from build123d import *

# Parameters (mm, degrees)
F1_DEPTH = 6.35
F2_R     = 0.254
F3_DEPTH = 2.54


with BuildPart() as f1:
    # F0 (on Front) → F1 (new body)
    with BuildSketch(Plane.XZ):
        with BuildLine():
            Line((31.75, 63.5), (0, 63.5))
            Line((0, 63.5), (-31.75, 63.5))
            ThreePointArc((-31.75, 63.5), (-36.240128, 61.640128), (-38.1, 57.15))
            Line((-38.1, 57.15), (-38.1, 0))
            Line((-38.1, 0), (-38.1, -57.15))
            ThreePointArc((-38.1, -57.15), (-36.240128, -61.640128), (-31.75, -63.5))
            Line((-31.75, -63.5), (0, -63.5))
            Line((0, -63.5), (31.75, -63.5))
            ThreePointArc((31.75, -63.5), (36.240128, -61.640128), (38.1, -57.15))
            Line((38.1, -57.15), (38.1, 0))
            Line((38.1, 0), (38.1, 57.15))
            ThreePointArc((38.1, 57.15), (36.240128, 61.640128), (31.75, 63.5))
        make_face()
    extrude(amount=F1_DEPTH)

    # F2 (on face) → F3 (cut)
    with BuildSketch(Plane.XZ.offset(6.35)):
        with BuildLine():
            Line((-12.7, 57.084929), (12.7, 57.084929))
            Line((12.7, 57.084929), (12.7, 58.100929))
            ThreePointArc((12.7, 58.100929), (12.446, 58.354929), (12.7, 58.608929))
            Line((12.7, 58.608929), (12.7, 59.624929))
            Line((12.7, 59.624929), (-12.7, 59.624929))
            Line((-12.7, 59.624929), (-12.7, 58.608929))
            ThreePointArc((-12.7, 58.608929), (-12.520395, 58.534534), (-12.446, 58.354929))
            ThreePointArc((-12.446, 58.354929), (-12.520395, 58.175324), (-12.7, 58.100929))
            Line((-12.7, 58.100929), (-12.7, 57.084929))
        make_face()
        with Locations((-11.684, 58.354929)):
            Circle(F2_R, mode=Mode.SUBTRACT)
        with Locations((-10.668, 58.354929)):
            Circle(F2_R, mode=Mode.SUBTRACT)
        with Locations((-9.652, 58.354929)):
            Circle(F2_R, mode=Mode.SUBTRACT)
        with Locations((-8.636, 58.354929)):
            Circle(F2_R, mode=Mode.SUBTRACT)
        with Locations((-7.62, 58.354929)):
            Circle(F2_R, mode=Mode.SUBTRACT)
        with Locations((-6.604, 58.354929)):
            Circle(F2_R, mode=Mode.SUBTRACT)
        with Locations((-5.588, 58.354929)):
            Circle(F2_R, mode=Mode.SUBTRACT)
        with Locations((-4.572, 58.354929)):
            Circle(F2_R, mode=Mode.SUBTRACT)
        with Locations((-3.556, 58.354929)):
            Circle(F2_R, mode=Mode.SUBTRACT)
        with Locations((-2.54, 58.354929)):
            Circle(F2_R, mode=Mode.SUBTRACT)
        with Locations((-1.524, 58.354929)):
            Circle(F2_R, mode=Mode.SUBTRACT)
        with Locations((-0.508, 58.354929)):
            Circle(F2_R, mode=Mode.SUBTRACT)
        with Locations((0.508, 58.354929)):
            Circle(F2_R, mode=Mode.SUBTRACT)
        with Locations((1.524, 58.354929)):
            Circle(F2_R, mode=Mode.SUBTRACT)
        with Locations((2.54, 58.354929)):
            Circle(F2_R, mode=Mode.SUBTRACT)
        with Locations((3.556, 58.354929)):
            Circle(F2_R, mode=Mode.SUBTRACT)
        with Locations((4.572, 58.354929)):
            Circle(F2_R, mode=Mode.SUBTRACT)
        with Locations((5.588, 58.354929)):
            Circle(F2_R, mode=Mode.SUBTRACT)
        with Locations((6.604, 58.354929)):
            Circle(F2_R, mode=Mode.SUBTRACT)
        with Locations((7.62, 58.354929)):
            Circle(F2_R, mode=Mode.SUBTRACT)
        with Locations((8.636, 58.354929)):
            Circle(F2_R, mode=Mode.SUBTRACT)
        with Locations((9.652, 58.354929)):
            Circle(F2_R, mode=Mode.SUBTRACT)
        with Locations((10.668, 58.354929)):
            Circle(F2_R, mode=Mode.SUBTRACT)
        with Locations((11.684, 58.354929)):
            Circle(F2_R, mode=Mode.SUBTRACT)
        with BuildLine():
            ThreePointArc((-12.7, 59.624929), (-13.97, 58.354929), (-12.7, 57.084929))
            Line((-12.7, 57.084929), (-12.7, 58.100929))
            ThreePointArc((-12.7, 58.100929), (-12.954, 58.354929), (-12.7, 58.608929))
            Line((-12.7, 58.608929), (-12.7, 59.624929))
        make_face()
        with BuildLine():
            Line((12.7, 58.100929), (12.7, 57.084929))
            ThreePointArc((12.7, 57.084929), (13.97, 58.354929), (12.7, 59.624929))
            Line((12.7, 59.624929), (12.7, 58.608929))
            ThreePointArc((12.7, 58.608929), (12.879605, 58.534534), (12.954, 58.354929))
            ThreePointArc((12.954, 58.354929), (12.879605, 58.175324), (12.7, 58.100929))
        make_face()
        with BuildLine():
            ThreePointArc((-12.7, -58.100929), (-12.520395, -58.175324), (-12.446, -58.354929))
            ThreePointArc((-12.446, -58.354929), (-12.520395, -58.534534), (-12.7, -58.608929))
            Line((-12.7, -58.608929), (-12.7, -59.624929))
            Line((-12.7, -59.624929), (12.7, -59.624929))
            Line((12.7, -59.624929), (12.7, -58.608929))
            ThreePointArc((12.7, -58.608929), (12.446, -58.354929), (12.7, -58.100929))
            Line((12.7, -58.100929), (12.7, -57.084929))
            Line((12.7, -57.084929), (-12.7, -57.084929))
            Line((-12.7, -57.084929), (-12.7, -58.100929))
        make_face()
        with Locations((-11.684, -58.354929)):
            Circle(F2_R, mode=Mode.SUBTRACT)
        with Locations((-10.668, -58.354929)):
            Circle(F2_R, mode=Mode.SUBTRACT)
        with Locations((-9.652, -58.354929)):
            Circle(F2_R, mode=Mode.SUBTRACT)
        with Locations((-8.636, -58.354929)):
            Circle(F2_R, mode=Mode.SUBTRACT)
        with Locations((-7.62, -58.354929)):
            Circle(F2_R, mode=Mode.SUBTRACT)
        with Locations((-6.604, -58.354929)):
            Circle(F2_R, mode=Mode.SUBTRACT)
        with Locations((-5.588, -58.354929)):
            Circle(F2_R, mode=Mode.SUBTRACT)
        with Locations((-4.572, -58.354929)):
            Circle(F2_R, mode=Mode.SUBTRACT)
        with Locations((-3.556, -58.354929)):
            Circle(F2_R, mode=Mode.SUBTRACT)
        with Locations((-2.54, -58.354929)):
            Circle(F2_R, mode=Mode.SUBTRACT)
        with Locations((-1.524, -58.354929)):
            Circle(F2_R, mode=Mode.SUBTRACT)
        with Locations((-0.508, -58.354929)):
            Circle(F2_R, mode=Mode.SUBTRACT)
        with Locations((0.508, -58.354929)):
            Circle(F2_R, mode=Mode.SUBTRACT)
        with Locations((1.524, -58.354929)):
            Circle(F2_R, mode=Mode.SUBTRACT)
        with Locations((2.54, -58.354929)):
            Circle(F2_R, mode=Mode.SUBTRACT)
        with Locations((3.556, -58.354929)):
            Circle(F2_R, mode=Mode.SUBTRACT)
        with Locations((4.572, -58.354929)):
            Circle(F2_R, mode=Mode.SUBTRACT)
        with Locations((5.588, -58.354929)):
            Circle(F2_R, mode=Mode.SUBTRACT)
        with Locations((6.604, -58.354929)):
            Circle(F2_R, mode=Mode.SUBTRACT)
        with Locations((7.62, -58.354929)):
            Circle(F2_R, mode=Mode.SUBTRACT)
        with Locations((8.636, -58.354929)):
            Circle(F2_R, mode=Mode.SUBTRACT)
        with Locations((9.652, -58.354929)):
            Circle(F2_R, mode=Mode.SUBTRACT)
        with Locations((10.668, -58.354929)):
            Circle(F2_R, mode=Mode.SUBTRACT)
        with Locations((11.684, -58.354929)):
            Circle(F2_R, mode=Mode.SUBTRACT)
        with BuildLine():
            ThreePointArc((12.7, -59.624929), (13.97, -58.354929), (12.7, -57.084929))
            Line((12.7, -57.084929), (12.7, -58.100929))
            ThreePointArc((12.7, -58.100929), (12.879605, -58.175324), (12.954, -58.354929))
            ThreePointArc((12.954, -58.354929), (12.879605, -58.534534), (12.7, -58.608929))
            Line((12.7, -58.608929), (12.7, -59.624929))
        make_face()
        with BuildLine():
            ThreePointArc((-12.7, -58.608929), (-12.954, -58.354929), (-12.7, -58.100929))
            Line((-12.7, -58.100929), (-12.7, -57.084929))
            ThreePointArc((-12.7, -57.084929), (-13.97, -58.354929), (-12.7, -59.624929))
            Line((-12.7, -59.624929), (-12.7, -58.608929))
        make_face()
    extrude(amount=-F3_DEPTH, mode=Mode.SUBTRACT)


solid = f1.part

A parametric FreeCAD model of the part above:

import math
import FreeCAD as App
import Part
import Sketcher

V = App.Vector
Q = App.Units.Quantity

doc = App.newDocument("Part")
body = doc.addObject("PartDesign::Body", "Body")

sketch1 = body.newObject("Sketcher::SketchObject", "Sketch")
sketch1.AttachmentSupport = (doc.getObject("XZ_Plane"), [""])
sketch1.MapMode = "FlatFace"
sketch1.addGeometry(Part.LineSegment(V(32, 64, 0), V(-32, 64, 0)), False)
sketch1.addGeometry(Part.ArcOfCircle(Part.Circle(V(-32, 57, 0), V(0, 0, 1), 6), math.radians(90), math.radians(180)), False)
sketch1.addGeometry(Part.LineSegment(V(-38, 57, 0), V(-38, -57, 0)), False)
sketch1.addGeometry(Part.ArcOfCircle(Part.Circle(V(-32, -57, 0), V(0, 0, 1), 6), math.radians(-180), math.radians(-90)), False)
sketch1.addGeometry(Part.LineSegment(V(-32, -64, 0), V(32, -64, 0)), False)
sketch1.addGeometry(Part.ArcOfCircle(Part.Circle(V(32, -57, 0), V(0, 0, 1), 6), math.radians(-90), math.radians(0)), False)
sketch1.addGeometry(Part.LineSegment(V(38, -57, 0), V(38, 57, 0)), False)
sketch1.addGeometry(Part.ArcOfCircle(Part.Circle(V(32, 57, 0), V(0, 0, 1), 6), math.radians(0), math.radians(90)), False)
sketch1.addConstraint(Sketcher.Constraint("Tangent", 0, 2, 1, 1))
sketch1.addConstraint(Sketcher.Constraint("Tangent", 1, 2, 2, 1))
sketch1.addConstraint(Sketcher.Constraint("Tangent", 2, 2, 3, 1))
sketch1.addConstraint(Sketcher.Constraint("Tangent", 3, 2, 4, 1))
sketch1.addConstraint(Sketcher.Constraint("Tangent", 4, 2, 5, 1))
sketch1.addConstraint(Sketcher.Constraint("Tangent", 5, 2, 6, 1))
sketch1.addConstraint(Sketcher.Constraint("Tangent", 6, 2, 7, 1))
sketch1.addConstraint(Sketcher.Constraint("Tangent", 7, 2, 0, 1))
sketch1.addConstraint(Sketcher.Constraint("Horizontal", 0))
sketch1.addConstraint(Sketcher.Constraint("Vertical", 2))
sketch1.addConstraint(Sketcher.Constraint("Horizontal", 4))
sketch1.addConstraint(Sketcher.Constraint("Vertical", 6))
sketch1.addConstraint(Sketcher.Constraint("Equal", 1, 3))
sketch1.addConstraint(Sketcher.Constraint("Equal", 3, 5))
sketch1.addConstraint(Sketcher.Constraint("Equal", 5, 7))
sketch1.addConstraint(Sketcher.Constraint("Symmetric", 1, 3, 5, 3, -1, 1))
sketch1.addConstraint(Sketcher.Constraint("Radius", 1, Q("0.25 in")))
sketch1.addConstraint(Sketcher.Constraint("DistanceX", 0, 2, 0, 1, Q("2.5 in")))
sketch1.addConstraint(Sketcher.Constraint("DistanceY", 2, 2, 2, 1, Q("4.5 in")))
pad1 = body.newObject("PartDesign::Pad", "Pad")
pad1.Profile = sketch1
pad1.Length = Q("0.25 in")

sketch2 = body.newObject("Sketcher::SketchObject", "Sketch001")
sketch2.AttachmentSupport = (doc.getObject("XZ_Plane"), [""])
sketch2.MapMode = "FlatFace"
sketch2.AttachmentOffset = App.Placement(V(0, 0, 0.25 * 25.4), App.Rotation())
sketch2.addGeometry(Part.LineSegment(V(-12.7, 57.08, 0), V(12.7, 57.08, 0)), False)
sketch2.addGeometry(Part.ArcOfCircle(Part.Circle(V(12.7, 58.35, 0), V(0, 0, 1), 1.27), math.radians(-90), math.radians(90)), False)
sketch2.addGeometry(Part.LineSegment(V(12.7, 59.62, 0), V(-12.7, 59.62, 0)), False)
sketch2.addGeometry(Part.ArcOfCircle(Part.Circle(V(-12.7, 58.35, 0), V(0, 0, 1), 1.27), math.radians(90), math.radians(270)), False)
sketch2.addGeometry(Part.ArcOfCircle(Part.Circle(V(12.7, 58.35, 0), V(0, 0, 1), 0.25), math.radians(90), math.radians(270)), False)
sketch2.addGeometry(Part.ArcOfCircle(Part.Circle(V(12.7, 58.35, 0), V(0, 0, 1), 0.25), math.radians(0), math.radians(90)), False)
sketch2.addGeometry(Part.ArcOfCircle(Part.Circle(V(12.7, 58.35, 0), V(0, 0, 1), 0.25), math.radians(-90), math.radians(0)), False)
sketch2.addGeometry(Part.ArcOfCircle(Part.Circle(V(-12.7, 58.35, 0), V(0, 0, 1), 0.25), math.radians(-90), math.radians(0)), False)
sketch2.addGeometry(Part.ArcOfCircle(Part.Circle(V(-12.7, 58.35, 0), V(0, 0, 1), 0.25), math.radians(90), math.radians(270)), False)
sketch2.addGeometry(Part.ArcOfCircle(Part.Circle(V(-12.7, 58.35, 0), V(0, 0, 1), 0.25), math.radians(0), math.radians(90)), False)
sketch2.addGeometry(Part.Circle(V(-11.68, 58.35, 0), V(0, 0, 1), 0.25), False)
sketch2.addGeometry(Part.Circle(V(-10.67, 58.35, 0), V(0, 0, 1), 0.25), False)
sketch2.addGeometry(Part.Circle(V(-9.65, 58.35, 0), V(0, 0, 1), 0.25), False)
sketch2.addGeometry(Part.Circle(V(-8.64, 58.35, 0), V(0, 0, 1), 0.25), False)
sketch2.addGeometry(Part.Circle(V(-7.62, 58.35, 0), V(0, 0, 1), 0.25), False)
sketch2.addGeometry(Part.Circle(V(-6.6, 58.35, 0), V(0, 0, 1), 0.25), False)
sketch2.addGeometry(Part.Circle(V(-5.59, 58.35, 0), V(0, 0, 1), 0.25), False)
sketch2.addGeometry(Part.Circle(V(-4.57, 58.35, 0), V(0, 0, 1), 0.25), False)
sketch2.addGeometry(Part.Circle(V(-3.56, 58.35, 0), V(0, 0, 1), 0.25), False)
sketch2.addGeometry(Part.Circle(V(-2.54, 58.35, 0), V(0, 0, 1), 0.25), False)
sketch2.addGeometry(Part.Circle(V(-1.52, 58.35, 0), V(0, 0, 1), 0.25), False)
sketch2.addGeometry(Part.Circle(V(-0.51, 58.35, 0), V(0, 0, 1), 0.25), False)
sketch2.addGeometry(Part.Circle(V(0.51, 58.35, 0), V(0, 0, 1), 0.25), False)
sketch2.addGeometry(Part.Circle(V(1.52, 58.35, 0), V(0, 0, 1), 0.25), False)
sketch2.addGeometry(Part.Circle(V(2.54, 58.35, 0), V(0, 0, 1), 0.25), False)
sketch2.addGeometry(Part.Circle(V(3.56, 58.35, 0), V(0, 0, 1), 0.25), False)
sketch2.addGeometry(Part.Circle(V(4.57, 58.35, 0), V(0, 0, 1), 0.25), False)
sketch2.addGeometry(Part.Circle(V(5.59, 58.35, 0), V(0, 0, 1), 0.25), False)
sketch2.addGeometry(Part.Circle(V(6.6, 58.35, 0), V(0, 0, 1), 0.25), False)
sketch2.addGeometry(Part.Circle(V(7.62, 58.35, 0), V(0, 0, 1), 0.25), False)
sketch2.addGeometry(Part.Circle(V(8.64, 58.35, 0), V(0, 0, 1), 0.25), False)
sketch2.addGeometry(Part.Circle(V(9.65, 58.35, 0), V(0, 0, 1), 0.25), False)
sketch2.addGeometry(Part.Circle(V(10.67, 58.35, 0), V(0, 0, 1), 0.25), False)
sketch2.addGeometry(Part.Circle(V(11.68, 58.35, 0), V(0, 0, 1), 0.25), False)
sketch2.addGeometry(Part.LineSegment(V(-12.7, -59.62, 0), V(12.7, -59.62, 0)), False)
sketch2.addGeometry(Part.ArcOfCircle(Part.Circle(V(12.7, -58.35, 0), V(0, 0, 1), 1.27), math.radians(-90), math.radians(90)), False)
sketch2.addGeometry(Part.LineSegment(V(12.7, -57.08, 0), V(-12.7, -57.08, 0)), False)
sketch2.addGeometry(Part.ArcOfCircle(Part.Circle(V(-12.7, -58.35, 0), V(0, 0, 1), 1.27), math.radians(90), math.radians(270)), False)
sketch2.addGeometry(Part.ArcOfCircle(Part.Circle(V(-12.7, -58.35, 0), V(0, 0, 1), 0.25), math.radians(0), math.radians(90)), False)
sketch2.addGeometry(Part.ArcOfCircle(Part.Circle(V(-12.7, -58.35, 0), V(0, 0, 1), 0.25), math.radians(-90), math.radians(0)), False)
sketch2.addGeometry(Part.ArcOfCircle(Part.Circle(V(-12.7, -58.35, 0), V(0, 0, 1), 0.25), math.radians(90), math.radians(270)), False)
sketch2.addGeometry(Part.ArcOfCircle(Part.Circle(V(12.7, -58.35, 0), V(0, 0, 1), 0.25), math.radians(90), math.radians(270)), False)
sketch2.addGeometry(Part.ArcOfCircle(Part.Circle(V(12.7, -58.35, 0), V(0, 0, 1), 0.25), math.radians(0), math.radians(90)), False)
sketch2.addGeometry(Part.ArcOfCircle(Part.Circle(V(12.7, -58.35, 0), V(0, 0, 1), 0.25), math.radians(-90), math.radians(0)), False)
sketch2.addGeometry(Part.Circle(V(-11.68, -58.35, 0), V(0, 0, 1), 0.25), False)
sketch2.addGeometry(Part.Circle(V(-10.67, -58.35, 0), V(0, 0, 1), 0.25), False)
sketch2.addGeometry(Part.Circle(V(-9.65, -58.35, 0), V(0, 0, 1), 0.25), False)
sketch2.addGeometry(Part.Circle(V(-8.64, -58.35, 0), V(0, 0, 1), 0.25), False)
sketch2.addGeometry(Part.Circle(V(-7.62, -58.35, 0), V(0, 0, 1), 0.25), False)
sketch2.addGeometry(Part.Circle(V(-6.6, -58.35, 0), V(0, 0, 1), 0.25), False)
sketch2.addGeometry(Part.Circle(V(-5.59, -58.35, 0), V(0, 0, 1), 0.25), False)
sketch2.addGeometry(Part.Circle(V(-4.57, -58.35, 0), V(0, 0, 1), 0.25), False)
sketch2.addGeometry(Part.Circle(V(-3.56, -58.35, 0), V(0, 0, 1), 0.25), False)
sketch2.addGeometry(Part.Circle(V(-2.54, -58.35, 0), V(0, 0, 1), 0.25), False)
sketch2.addGeometry(Part.Circle(V(-1.52, -58.35, 0), V(0, 0, 1), 0.25), False)
sketch2.addGeometry(Part.Circle(V(-0.51, -58.35, 0), V(0, 0, 1), 0.25), False)
sketch2.addGeometry(Part.Circle(V(0.51, -58.35, 0), V(0, 0, 1), 0.25), False)
sketch2.addGeometry(Part.Circle(V(1.52, -58.35, 0), V(0, 0, 1), 0.25), False)
sketch2.addGeometry(Part.Circle(V(2.54, -58.35, 0), V(0, 0, 1), 0.25), False)
sketch2.addGeometry(Part.Circle(V(3.56, -58.35, 0), V(0, 0, 1), 0.25), False)
sketch2.addGeometry(Part.Circle(V(4.57, -58.35, 0), V(0, 0, 1), 0.25), False)
sketch2.addGeometry(Part.Circle(V(5.59, -58.35, 0), V(0, 0, 1), 0.25), False)
sketch2.addGeometry(Part.Circle(V(6.6, -58.35, 0), V(0, 0, 1), 0.25), False)
sketch2.addGeometry(Part.Circle(V(7.62, -58.35, 0), V(0, 0, 1), 0.25), False)
sketch2.addGeometry(Part.Circle(V(8.64, -58.35, 0), V(0, 0, 1), 0.25), False)
sketch2.addGeometry(Part.Circle(V(9.65, -58.35, 0), V(0, 0, 1), 0.25), False)
sketch2.addGeometry(Part.Circle(V(10.67, -58.35, 0), V(0, 0, 1), 0.25), False)
sketch2.addGeometry(Part.Circle(V(11.68, -58.35, 0), V(0, 0, 1), 0.25), False)
sketch2.addConstraint(Sketcher.Constraint("Tangent", 0, 2, 1, 1))
sketch2.addConstraint(Sketcher.Constraint("Tangent", 1, 2, 2, 1))
sketch2.addConstraint(Sketcher.Constraint("Tangent", 2, 2, 3, 1))
sketch2.addConstraint(Sketcher.Constraint("Tangent", 3, 2, 0, 1))
sketch2.addConstraint(Sketcher.Constraint("Tangent", 4, 1, 5, 2))
sketch2.addConstraint(Sketcher.Constraint("Coincident", 5, 1, 6, 2))
sketch2.addConstraint(Sketcher.Constraint("Tangent", 6, 1, 4, 2))
sketch2.addConstraint(Sketcher.Constraint("Tangent", 7, 1, 8, 2))
sketch2.addConstraint(Sketcher.Constraint("Tangent", 8, 1, 9, 2))
sketch2.addConstraint(Sketcher.Constraint("Coincident", 9, 1, 7, 2))
sketch2.addConstraint(Sketcher.Constraint("Tangent", 34, 2, 35, 1))
sketch2.addConstraint(Sketcher.Constraint("Tangent", 35, 2, 36, 1))
sketch2.addConstraint(Sketcher.Constraint("Tangent", 36, 2, 37, 1))
sketch2.addConstraint(Sketcher.Constraint("Tangent", 37, 2, 34, 1))
sketch2.addConstraint(Sketcher.Constraint("Coincident", 38, 1, 39, 2))
sketch2.addConstraint(Sketcher.Constraint("Tangent", 39, 1, 40, 2))
sketch2.addConstraint(Sketcher.Constraint("Tangent", 40, 1, 38, 2))
sketch2.addConstraint(Sketcher.Constraint("Tangent", 41, 1, 42, 2))
sketch2.addConstraint(Sketcher.Constraint("Coincident", 42, 1, 43, 2))
sketch2.addConstraint(Sketcher.Constraint("Tangent", 43, 1, 41, 2))
sketch2.addConstraint(Sketcher.Constraint("Horizontal", 0))
sketch2.addConstraint(Sketcher.Constraint("Horizontal", 2))
sketch2.addConstraint(Sketcher.Constraint("Horizontal", 34))
sketch2.addConstraint(Sketcher.Constraint("Horizontal", 36))
sketch2.addConstraint(Sketcher.Constraint("Coincident", 4, 3, 1, 3))
sketch2.addConstraint(Sketcher.Constraint("Coincident", 7, 3, 3, 3))
sketch2.addConstraint(Sketcher.Constraint("Coincident", 38, 3, 37, 3))
sketch2.addConstraint(Sketcher.Constraint("Coincident", 41, 3, 35, 3))
sketch2.addConstraint(Sketcher.Constraint("Equal", 4, 5))
sketch2.addConstraint(Sketcher.Constraint("Equal", 6, 7))
sketch2.addConstraint(Sketcher.Constraint("Equal", 7, 8))
sketch2.addConstraint(Sketcher.Constraint("Equal", 9, 10))
sketch2.addConstraint(Sketcher.Constraint("Equal", 10, 11))
sketch2.addConstraint(Sketcher.Constraint("Equal", 11, 12))
sketch2.addConstraint(Sketcher.Constraint("Equal", 12, 13))
sketch2.addConstraint(Sketcher.Constraint("Equal", 13, 14))
sketch2.addConstraint(Sketcher.Constraint("Equal", 14, 15))
sketch2.addConstraint(Sketcher.Constraint("Equal", 15, 16))
sketch2.addConstraint(Sketcher.Constraint("Equal", 16, 17))
sketch2.addConstraint(Sketcher.Constraint("Equal", 17, 18))
sketch2.addConstraint(Sketcher.Constraint("Equal", 18, 19))
sketch2.addConstraint(Sketcher.Constraint("Equal", 19, 20))
sketch2.addConstraint(Sketcher.Constraint("Equal", 20, 21))
sketch2.addConstraint(Sketcher.Constraint("Equal", 21, 22))
sketch2.addConstraint(Sketcher.Constraint("Equal", 22, 23))
sketch2.addConstraint(Sketcher.Constraint("Equal", 23, 24))
sketch2.addConstraint(Sketcher.Constraint("Equal", 24, 25))
sketch2.addConstraint(Sketcher.Constraint("Equal", 25, 26))
sketch2.addConstraint(Sketcher.Constraint("Equal", 26, 27))
sketch2.addConstraint(Sketcher.Constraint("Equal", 27, 28))
sketch2.addConstraint(Sketcher.Constraint("Equal", 28, 29))
sketch2.addConstraint(Sketcher.Constraint("Equal", 29, 30))
sketch2.addConstraint(Sketcher.Constraint("Equal", 30, 31))
sketch2.addConstraint(Sketcher.Constraint("Equal", 31, 32))
sketch2.addConstraint(Sketcher.Constraint("Equal", 32, 33))
sketch2.addConstraint(Sketcher.Constraint("Equal", 3, 35))
sketch2.addConstraint(Sketcher.Constraint("Equal", 33, 38))
sketch2.addConstraint(Sketcher.Constraint("Equal", 39, 40))
sketch2.addConstraint(Sketcher.Constraint("Equal", 40, 41))
sketch2.addConstraint(Sketcher.Constraint("Equal", 41, 42))
sketch2.addConstraint(Sketcher.Constraint("Equal", 43, 44))
sketch2.addConstraint(Sketcher.Constraint("Equal", 44, 45))
sketch2.addConstraint(Sketcher.Constraint("Equal", 45, 46))
sketch2.addConstraint(Sketcher.Constraint("Equal", 46, 47))
sketch2.addConstraint(Sketcher.Constraint("Equal", 47, 48))
sketch2.addConstraint(Sketcher.Constraint("Equal", 48, 49))
sketch2.addConstraint(Sketcher.Constraint("Equal", 49, 50))
sketch2.addConstraint(Sketcher.Constraint("Equal", 50, 51))
sketch2.addConstraint(Sketcher.Constraint("Equal", 51, 52))
sketch2.addConstraint(Sketcher.Constraint("Equal", 52, 53))
sketch2.addConstraint(Sketcher.Constraint("Equal", 53, 54))
sketch2.addConstraint(Sketcher.Constraint("Equal", 54, 55))
sketch2.addConstraint(Sketcher.Constraint("Equal", 55, 56))
sketch2.addConstraint(Sketcher.Constraint("Equal", 56, 57))
sketch2.addConstraint(Sketcher.Constraint("Equal", 57, 58))
sketch2.addConstraint(Sketcher.Constraint("Equal", 58, 59))
sketch2.addConstraint(Sketcher.Constraint("Equal", 59, 60))
sketch2.addConstraint(Sketcher.Constraint("Equal", 60, 61))
sketch2.addConstraint(Sketcher.Constraint("Equal", 61, 62))
sketch2.addConstraint(Sketcher.Constraint("Equal", 62, 63))
sketch2.addConstraint(Sketcher.Constraint("Equal", 63, 64))
sketch2.addConstraint(Sketcher.Constraint("Equal", 64, 65))
sketch2.addConstraint(Sketcher.Constraint("Equal", 65, 66))
sketch2.addConstraint(Sketcher.Constraint("Equal", 66, 67))
sketch2.addConstraint(Sketcher.Constraint("Symmetric", 3, 3, 35, 3, -1, 1))
sketch2.addConstraint(Sketcher.Constraint("Symmetric", 33, 3, 44, 3, -1, 1))
sketch2.addConstraint(Sketcher.Constraint("Symmetric", 32, 3, 45, 3, -1, 1))
sketch2.addConstraint(Sketcher.Constraint("Symmetric", 31, 3, 46, 3, -1, 1))
sketch2.addConstraint(Sketcher.Constraint("Symmetric", 30, 3, 47, 3, -1, 1))
sketch2.addConstraint(Sketcher.Constraint("Symmetric", 29, 3, 48, 3, -1, 1))
sketch2.addConstraint(Sketcher.Constraint("Symmetric", 28, 3, 49, 3, -1, 1))
sketch2.addConstraint(Sketcher.Constraint("Symmetric", 27, 3, 50, 3, -1, 1))
sketch2.addConstraint(Sketcher.Constraint("Symmetric", 26, 3, 51, 3, -1, 1))
sketch2.addConstraint(Sketcher.Constraint("Symmetric", 25, 3, 52, 3, -1, 1))
sketch2.addConstraint(Sketcher.Constraint("Symmetric", 24, 3, 53, 3, -1, 1))
sketch2.addConstraint(Sketcher.Constraint("Symmetric", 23, 3, 54, 3, -1, 1))
sketch2.addConstraint(Sketcher.Constraint("Symmetric", 22, 3, 55, 3, -1, 1))
sketch2.addConstraint(Sketcher.Constraint("Symmetric", 21, 3, 56, 3, -1, 1))
sketch2.addConstraint(Sketcher.Constraint("Symmetric", 20, 3, 57, 3, -1, 1))
sketch2.addConstraint(Sketcher.Constraint("Symmetric", 19, 3, 58, 3, -1, 1))
sketch2.addConstraint(Sketcher.Constraint("Symmetric", 18, 3, 59, 3, -1, 1))
sketch2.addConstraint(Sketcher.Constraint("Symmetric", 17, 3, 60, 3, -1, 1))
sketch2.addConstraint(Sketcher.Constraint("Symmetric", 16, 3, 61, 3, -1, 1))
sketch2.addConstraint(Sketcher.Constraint("Symmetric", 15, 3, 62, 3, -1, 1))
sketch2.addConstraint(Sketcher.Constraint("Symmetric", 14, 3, 63, 3, -1, 1))
sketch2.addConstraint(Sketcher.Constraint("Symmetric", 13, 3, 64, 3, -1, 1))
sketch2.addConstraint(Sketcher.Constraint("Symmetric", 12, 3, 65, 3, -1, 1))
sketch2.addConstraint(Sketcher.Constraint("Symmetric", 11, 3, 66, 3, -1, 1))
sketch2.addConstraint(Sketcher.Constraint("Symmetric", 10, 3, 67, 3, -1, 1))
sketch2.addConstraint(Sketcher.Constraint("Symmetric", 21, 3, 22, 3, -2))
sketch2.addConstraint(Sketcher.Constraint("Symmetric", 20, 3, 23, 3, -2))
sketch2.addConstraint(Sketcher.Constraint("Symmetric", 19, 3, 24, 3, -2))
sketch2.addConstraint(Sketcher.Constraint("Symmetric", 18, 3, 25, 3, -2))
sketch2.addConstraint(Sketcher.Constraint("Symmetric", 17, 3, 26, 3, -2))
sketch2.addConstraint(Sketcher.Constraint("Symmetric", 16, 3, 27, 3, -2))
sketch2.addConstraint(Sketcher.Constraint("Symmetric", 15, 3, 28, 3, -2))
sketch2.addConstraint(Sketcher.Constraint("Symmetric", 14, 3, 29, 3, -2))
sketch2.addConstraint(Sketcher.Constraint("Symmetric", 13, 3, 30, 3, -2))
sketch2.addConstraint(Sketcher.Constraint("Symmetric", 12, 3, 31, 3, -2))
sketch2.addConstraint(Sketcher.Constraint("Symmetric", 11, 3, 32, 3, -2))
sketch2.addConstraint(Sketcher.Constraint("Symmetric", 10, 3, 33, 3, -2))
sketch2.addConstraint(Sketcher.Constraint("Symmetric", 9, 1, 38, 1, -1))
sketch2.addConstraint(Sketcher.Constraint("Symmetric", 5, 1, 42, 1, -1))
sketch2.addConstraint(Sketcher.Constraint("Horizontal", 9, 3, 10, 3))
sketch2.addConstraint(Sketcher.Constraint("Horizontal", 10, 3, 11, 3))
sketch2.addConstraint(Sketcher.Constraint("Horizontal", 11, 3, 12, 3))
sketch2.addConstraint(Sketcher.Constraint("Horizontal", 12, 3, 13, 3))
sketch2.addConstraint(Sketcher.Constraint("Horizontal", 13, 3, 14, 3))
sketch2.addConstraint(Sketcher.Constraint("Horizontal", 14, 3, 15, 3))
sketch2.addConstraint(Sketcher.Constraint("Horizontal", 15, 3, 16, 3))
sketch2.addConstraint(Sketcher.Constraint("Horizontal", 16, 3, 17, 3))
sketch2.addConstraint(Sketcher.Constraint("Horizontal", 17, 3, 18, 3))
sketch2.addConstraint(Sketcher.Constraint("Horizontal", 18, 3, 19, 3))
sketch2.addConstraint(Sketcher.Constraint("Horizontal", 19, 3, 20, 3))
sketch2.addConstraint(Sketcher.Constraint("Horizontal", 20, 3, 21, 3))
sketch2.addConstraint(Sketcher.Constraint("Horizontal", 33, 3, 5, 1))
sketch2.addConstraint(Sketcher.Constraint("Horizontal", 5, 1, 9, 1))
sketch2.addConstraint(Sketcher.Constraint("Vertical", 1, 2, 4, 1))
sketch2.addConstraint(Sketcher.Constraint("Vertical", 4, 1, 6, 1))
sketch2.addConstraint(Sketcher.Constraint("Vertical", 3, 2, 7, 1))
sketch2.addConstraint(Sketcher.Constraint("Vertical", 7, 1, 8, 1))
sketch2.addConstraint(Sketcher.Constraint("Vertical", 37, 2, 39, 1))
sketch2.addConstraint(Sketcher.Constraint("Vertical", 39, 1, 40, 1))
sketch2.addConstraint(Sketcher.Constraint("Vertical", 35, 2, 41, 1))
sketch2.addConstraint(Sketcher.Constraint("Vertical", 41, 1, 43, 1))
sketch2.addConstraint(Sketcher.Constraint("Diameter", 10, Q("0.02 in")))
sketch2.addConstraint(Sketcher.Constraint("DistanceX", 0, 1, 0, 2, Q("1 in")))
sketch2.addConstraint(Sketcher.Constraint("Radius", 1, Q("0.05 in")))
sketch2.addConstraint(Sketcher.Constraint("DistanceX", 14, 3, -1, 1, Q("0.3 in")))
sketch2.addConstraint(Sketcher.Constraint("DistanceX", 19, 3, -1, 1, Q("0.1 in")))
sketch2.addConstraint(Sketcher.Constraint("DistanceX", 10, 3, -1, 1, Q("0.46 in")))
sketch2.addConstraint(Sketcher.Constraint("DistanceX", 11, 3, -1, 1, Q("0.42 in")))
sketch2.addConstraint(Sketcher.Constraint("DistanceX", 12, 3, -1, 1, Q("0.38 in")))
sketch2.addConstraint(Sketcher.Constraint("DistanceX", 13, 3, -1, 1, Q("0.34 in")))
sketch2.addConstraint(Sketcher.Constraint("DistanceX", 15, 3, -1, 1, Q("0.26 in")))
sketch2.addConstraint(Sketcher.Constraint("DistanceX", 16, 3, -1, 1, Q("0.22 in")))
sketch2.addConstraint(Sketcher.Constraint("DistanceX", 17, 3, -1, 1, Q("0.18 in")))
sketch2.addConstraint(Sketcher.Constraint("DistanceX", 18, 3, -1, 1, Q("0.14 in")))
sketch2.addConstraint(Sketcher.Constraint("DistanceX", 20, 3, -1, 1, Q("0.06 in")))
sketch2.addConstraint(Sketcher.Constraint("DistanceX", 21, 3, -1, 1, Q("0.02 in")))
sketch2.addConstraint(Sketcher.Constraint("DistanceY", -1, 1, 1, 3, 58.354929))
pocket1 = body.newObject("PartDesign::Pocket", "Pocket")
pocket1.Profile = sketch2
pocket1.Length = Q("0.1 in")

doc.recompute()
